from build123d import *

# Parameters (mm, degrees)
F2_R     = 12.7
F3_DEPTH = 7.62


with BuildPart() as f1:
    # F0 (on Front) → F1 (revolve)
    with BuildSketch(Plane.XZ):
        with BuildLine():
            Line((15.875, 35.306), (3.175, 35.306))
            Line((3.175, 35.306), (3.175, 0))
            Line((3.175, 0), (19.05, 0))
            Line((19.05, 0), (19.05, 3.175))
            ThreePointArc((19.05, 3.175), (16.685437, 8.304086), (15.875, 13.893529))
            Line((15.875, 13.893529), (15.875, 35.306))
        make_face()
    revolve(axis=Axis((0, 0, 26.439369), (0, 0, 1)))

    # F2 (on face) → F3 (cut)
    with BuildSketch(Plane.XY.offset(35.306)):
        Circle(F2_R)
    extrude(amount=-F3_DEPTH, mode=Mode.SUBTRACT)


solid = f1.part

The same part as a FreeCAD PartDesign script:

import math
import FreeCAD as App
import Part
import Sketcher
from FreeCAD import Vector
Q = App.Units.Quantity

doc = App.newDocument("Part")
params = doc.addObject("Spreadsheet::Sheet", "Params")
for row, (alias, value) in enumerate([
    ("sketch1_width", "0.5 in"),
    ("sketch1_height", "1.39 in"),
    ("sketch1_width2", "0.625 in"),
    ("sketch1_height2", "0.125 in"),
    ("revolution_angle", "360 deg"),
    ("sketch2_diameter", "1 in"),
    ("pocket1_length", "0.3 in"),
], start=1):
    params.set(f"A{row}", alias)
    params.set(f"B{row}", "=" + value)
    params.setAlias(f"B{row}", alias)

body = doc.addObject("PartDesign::Body", "Body")

# Sketch on XZ plane
sketch1 = body.newObject("Sketcher::SketchObject", "Sketch")
sketch1.AttachmentSupport = (doc.getObject("XZ_Plane"), [""])
sketch1.MapMode = "FlatFace"
sketch1.addGeometry([
    Part.LineSegment(Vector(15.9, 35.3, 0), Vector(3.2, 35.3, 0)),  # 0
    Part.LineSegment(Vector(3.2, 35.3, 0), Vector(3.2, 0, 0)),  # 1
    Part.LineSegment(Vector(3.2, 0, 0), Vector(19.1, 0, 0)),  # 2
    Part.LineSegment(Vector(19.1, 0, 0), Vector(19.1, 3.2, 0)),  # 3
    Part.ArcOfCircle(Part.Circle(Vector(35.6, 13.9, 0), Vector(0, 0, 1), 19.7), math.radians(180), math.radians(213)),  # 4
    Part.LineSegment(Vector(15.9, 13.9, 0), Vector(15.9, 35.3, 0)),  # 5
], False)
sketch1.addConstraint([
    Sketcher.Constraint("Coincident", 0, 2, 1, 1),
    Sketcher.Constraint("Coincident", 1, 2, 2, 1),
    Sketcher.Constraint("Coincident", 2, 2, 3, 1),
    Sketcher.Constraint("Coincident", 3, 2, 4, 2),
    Sketcher.Constraint("Tangent", 4, 1, 5, 1),
    Sketcher.Constraint("Coincident", 5, 2, 0, 1),
    Sketcher.Constraint("Horizontal", 0),
    Sketcher.Constraint("Vertical", 1),
    Sketcher.Constraint("Horizontal", 2),
    Sketcher.Constraint("Vertical", 3),
    Sketcher.Constraint("Vertical", 5),
    Sketcher.Constraint("PointOnObject", 1, 2, -1),
    Sketcher.Constraint("DistanceX", 0, 2, 0, 1, Q("0.5 in")),
    Sketcher.Constraint("DistanceY", 1, 2, 1, 1, Q("1.39 in")),
    Sketcher.Constraint("DistanceX", 2, 1, 2, 2, Q("0.625 in")),
    Sketcher.Constraint("DistanceY", 3, 1, 3, 2, Q("0.125 in")),
    Sketcher.Constraint("DistanceX", -1, 1, 2, 2, Q("0.75 in")),
    Sketcher.Constraint("Radius", 4, Q("19.679913 mm")),
])
sketch1.setExpression("Constraints[12]", "Params.sketch1_width")
sketch1.setExpression("Constraints[13]", "Params.sketch1_height")
sketch1.setExpression("Constraints[14]", "Params.sketch1_width2")
sketch1.setExpression("Constraints[15]", "Params.sketch1_height2")
revolution = body.newObject("PartDesign::Revolution", "Revolution")
revolution.Profile = sketch1
revolution.ReferenceAxis = (sketch1, ["V_Axis"])
revolution.setExpression("Angle", "Params.revolution_angle")

# Sketch on XY plane
sketch2 = body.newObject("Sketcher::SketchObject", "Sketch001")
sketch2.AttachmentSupport = (doc.getObject("XY_Plane"), [""])
sketch2.MapMode = "FlatFace"
sketch2.AttachmentOffset = App.Placement(Vector(0, 0, 1.39 * 25.4), App.Rotation())
sketch2.addGeometry(Part.Circle(Vector(0, 0, 0), Vector(0, 0, 1), 13), False)
sketch2.addConstraint([
    Sketcher.Constraint("Coincident", 0, 3, -1, 1),
    Sketcher.Constraint("Diameter", 0, Q("1 in")),
])
sketch2.setExpression("Constraints[1]", "Params.sketch2_diameter")
pocket1 = body.newObject("PartDesign::Pocket", "Pocket")
pocket1.Profile = sketch2
pocket1.setExpression("Length", "Params.pocket1_length")

doc.recompute()
